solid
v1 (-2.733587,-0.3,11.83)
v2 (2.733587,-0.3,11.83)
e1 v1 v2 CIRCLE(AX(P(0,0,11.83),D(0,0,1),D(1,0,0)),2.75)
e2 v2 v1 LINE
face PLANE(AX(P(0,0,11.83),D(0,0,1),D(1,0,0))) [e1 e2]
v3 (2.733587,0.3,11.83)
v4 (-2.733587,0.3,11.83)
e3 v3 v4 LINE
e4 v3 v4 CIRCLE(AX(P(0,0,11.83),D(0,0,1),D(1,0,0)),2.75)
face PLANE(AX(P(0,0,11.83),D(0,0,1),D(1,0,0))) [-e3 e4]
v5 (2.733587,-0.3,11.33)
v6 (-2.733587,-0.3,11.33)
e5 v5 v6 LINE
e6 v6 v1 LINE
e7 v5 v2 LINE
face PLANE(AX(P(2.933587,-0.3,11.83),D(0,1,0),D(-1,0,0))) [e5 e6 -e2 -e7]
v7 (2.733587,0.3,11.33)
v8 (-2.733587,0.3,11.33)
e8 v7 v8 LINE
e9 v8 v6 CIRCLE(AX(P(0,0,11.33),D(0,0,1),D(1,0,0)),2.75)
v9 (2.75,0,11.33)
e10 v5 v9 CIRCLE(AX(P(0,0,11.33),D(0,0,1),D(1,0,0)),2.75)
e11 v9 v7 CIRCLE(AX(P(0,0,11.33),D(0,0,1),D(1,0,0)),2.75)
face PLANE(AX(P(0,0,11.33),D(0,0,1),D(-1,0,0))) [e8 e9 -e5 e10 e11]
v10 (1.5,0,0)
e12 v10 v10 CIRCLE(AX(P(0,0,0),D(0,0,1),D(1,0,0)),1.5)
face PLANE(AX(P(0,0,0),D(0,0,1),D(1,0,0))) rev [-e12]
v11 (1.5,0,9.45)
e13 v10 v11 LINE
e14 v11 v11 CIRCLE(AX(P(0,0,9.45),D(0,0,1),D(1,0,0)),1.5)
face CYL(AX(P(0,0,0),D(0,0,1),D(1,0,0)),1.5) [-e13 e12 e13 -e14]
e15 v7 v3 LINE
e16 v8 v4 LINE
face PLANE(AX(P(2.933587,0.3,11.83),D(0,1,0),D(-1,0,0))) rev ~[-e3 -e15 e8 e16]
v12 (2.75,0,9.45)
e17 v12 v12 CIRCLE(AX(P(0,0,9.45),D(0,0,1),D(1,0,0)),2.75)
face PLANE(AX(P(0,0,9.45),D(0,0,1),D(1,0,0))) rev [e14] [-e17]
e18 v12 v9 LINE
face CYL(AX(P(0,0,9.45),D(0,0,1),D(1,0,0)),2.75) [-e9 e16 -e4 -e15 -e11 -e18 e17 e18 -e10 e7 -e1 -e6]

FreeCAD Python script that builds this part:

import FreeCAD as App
import Part
import Sketcher
from FreeCAD import Vector

doc = App.newDocument("Part")
body = doc.addObject("PartDesign::Body", "Body")

# Sketch on XZ plane
sketch1 = body.newObject("Sketcher::SketchObject", "Sketch")
sketch1.AttachmentSupport = (doc.getObject("XZ_Plane"), [""])
sketch1.MapMode = "FlatFace"
sketch1.addGeometry([
    Part.LineSegment(Vector(0, 0, 0), Vector(1.5, 0, 0)),  # 0
    Part.LineSegment(Vector(1.5, 0, 0), Vector(1.5, 9.4, 0)),  # 1
    Part.LineSegment(Vector(1.5, 9.4, 0), Vector(2.8, 9.4, 0)),  # 2
    Part.LineSegment(Vector(2.8, 9.4, 0), Vector(2.8, 11.8, 0)),  # 3
    Part.LineSegment(Vector(2.8, 11.8, 0), Vector(0, 11.8, 0)),  # 4
    Part.LineSegment(Vector(0, 11.8, 0), Vector(0, 0, 0)),  # 5
], False)
sketch1.addConstraint([
    Sketcher.Constraint("Coincident", 0, 2, 1, 1),
    Sketcher.Constraint("Coincident", 1, 2, 2, 1),
    Sketcher.Constraint("Coincident", 2, 2, 3, 1),
    Sketcher.Constraint("Coincident", 3, 2, 4, 1),
    Sketcher.Constraint("Coincident", 4, 2, 5, 1),
    Sketcher.Constraint("Coincident", 5, 2, 0, 1),
    Sketcher.Constraint("Horizontal", 0),
    Sketcher.Constraint("Vertical", 1),
    Sketcher.Constraint("Horizontal", 2),
    Sketcher.Constraint("Vertical", 3),
    Sketcher.Constraint("Horizontal", 4),
    Sketcher.Constraint("Vertical", 5),
    Sketcher.Constraint("Coincident", 5, 2, -1, 1),
    Sketcher.Constraint("DistanceX", 0, 1, 0, 2, 1.5),
    Sketcher.Constraint("DistanceX", 2, 1, 2, 2, 1.25),
    Sketcher.Constraint("DistanceY", 1, 1, 1, 2, 9.45),
    Sketcher.Constraint("DistanceY", 3, 1, 3, 2, 2.38),
])
revolution = body.newObject("PartDesign::Revolution", "Revolution")
revolution.Profile = sketch1
revolution.ReferenceAxis = (sketch1, ["V_Axis"])
revolution.Angle = 360

# Sketch on XY plane
sketch2 = body.newObject("Sketcher::SketchObject", "Sketch001")
sketch2.AttachmentSupport = (doc.getObject("XY_Plane"), [""])
sketch2.MapMode = "FlatFace"
sketch2.AttachmentOffset = App.Placement(Vector(0, 0, 11.83), App.Rotation())
sketch2.addGeometry([
    Part.LineSegment(Vector(2.9, -0.3, 0), Vector(2.9, 0.3, 0)),
    Part.LineSegment(Vector(2.9, 0.3, 0), Vector(-2.9, 0.3, 0)),
    Part.LineSegment(Vector(-2.9, 0.3, 0), Vector(-2.9, -0.3, 0)),
    Part.LineSegment(Vector(-2.9, -0.3, 0), Vector(2.9, -0.3, 0)),
], False)
sketch2.addConstraint([
    Sketcher.Constraint("Coincident", 0, 2, 1, 1),
    Sketcher.Constraint("Coincident", 1, 2, 2, 1),
    Sketcher.Constraint("Coincident", 2, 2, 3, 1),
    Sketcher.Constraint("Coincident", 3, 2, 0, 1),
    Sketcher.Constraint("Vertical", 0),
    Sketcher.Constraint("Horizontal", 1),
    Sketcher.Constraint("Vertical", 2),
    Sketcher.Constraint("Horizontal", 3),
    Sketcher.Constraint("Symmetric", 0, 2, 2, 2, -1, 1),
    Sketcher.Constraint("DistanceY", 0, 1, 0, 2, 0.6),
    Sketcher.Constraint("DistanceX", 1, 2, 1, 1, 5.867174),
])
pocket1 = body.newObject("PartDesign::Pocket", "Pocket")
pocket1.Profile = sketch2
pocket1.Length = 0.5

doc.recompute()
